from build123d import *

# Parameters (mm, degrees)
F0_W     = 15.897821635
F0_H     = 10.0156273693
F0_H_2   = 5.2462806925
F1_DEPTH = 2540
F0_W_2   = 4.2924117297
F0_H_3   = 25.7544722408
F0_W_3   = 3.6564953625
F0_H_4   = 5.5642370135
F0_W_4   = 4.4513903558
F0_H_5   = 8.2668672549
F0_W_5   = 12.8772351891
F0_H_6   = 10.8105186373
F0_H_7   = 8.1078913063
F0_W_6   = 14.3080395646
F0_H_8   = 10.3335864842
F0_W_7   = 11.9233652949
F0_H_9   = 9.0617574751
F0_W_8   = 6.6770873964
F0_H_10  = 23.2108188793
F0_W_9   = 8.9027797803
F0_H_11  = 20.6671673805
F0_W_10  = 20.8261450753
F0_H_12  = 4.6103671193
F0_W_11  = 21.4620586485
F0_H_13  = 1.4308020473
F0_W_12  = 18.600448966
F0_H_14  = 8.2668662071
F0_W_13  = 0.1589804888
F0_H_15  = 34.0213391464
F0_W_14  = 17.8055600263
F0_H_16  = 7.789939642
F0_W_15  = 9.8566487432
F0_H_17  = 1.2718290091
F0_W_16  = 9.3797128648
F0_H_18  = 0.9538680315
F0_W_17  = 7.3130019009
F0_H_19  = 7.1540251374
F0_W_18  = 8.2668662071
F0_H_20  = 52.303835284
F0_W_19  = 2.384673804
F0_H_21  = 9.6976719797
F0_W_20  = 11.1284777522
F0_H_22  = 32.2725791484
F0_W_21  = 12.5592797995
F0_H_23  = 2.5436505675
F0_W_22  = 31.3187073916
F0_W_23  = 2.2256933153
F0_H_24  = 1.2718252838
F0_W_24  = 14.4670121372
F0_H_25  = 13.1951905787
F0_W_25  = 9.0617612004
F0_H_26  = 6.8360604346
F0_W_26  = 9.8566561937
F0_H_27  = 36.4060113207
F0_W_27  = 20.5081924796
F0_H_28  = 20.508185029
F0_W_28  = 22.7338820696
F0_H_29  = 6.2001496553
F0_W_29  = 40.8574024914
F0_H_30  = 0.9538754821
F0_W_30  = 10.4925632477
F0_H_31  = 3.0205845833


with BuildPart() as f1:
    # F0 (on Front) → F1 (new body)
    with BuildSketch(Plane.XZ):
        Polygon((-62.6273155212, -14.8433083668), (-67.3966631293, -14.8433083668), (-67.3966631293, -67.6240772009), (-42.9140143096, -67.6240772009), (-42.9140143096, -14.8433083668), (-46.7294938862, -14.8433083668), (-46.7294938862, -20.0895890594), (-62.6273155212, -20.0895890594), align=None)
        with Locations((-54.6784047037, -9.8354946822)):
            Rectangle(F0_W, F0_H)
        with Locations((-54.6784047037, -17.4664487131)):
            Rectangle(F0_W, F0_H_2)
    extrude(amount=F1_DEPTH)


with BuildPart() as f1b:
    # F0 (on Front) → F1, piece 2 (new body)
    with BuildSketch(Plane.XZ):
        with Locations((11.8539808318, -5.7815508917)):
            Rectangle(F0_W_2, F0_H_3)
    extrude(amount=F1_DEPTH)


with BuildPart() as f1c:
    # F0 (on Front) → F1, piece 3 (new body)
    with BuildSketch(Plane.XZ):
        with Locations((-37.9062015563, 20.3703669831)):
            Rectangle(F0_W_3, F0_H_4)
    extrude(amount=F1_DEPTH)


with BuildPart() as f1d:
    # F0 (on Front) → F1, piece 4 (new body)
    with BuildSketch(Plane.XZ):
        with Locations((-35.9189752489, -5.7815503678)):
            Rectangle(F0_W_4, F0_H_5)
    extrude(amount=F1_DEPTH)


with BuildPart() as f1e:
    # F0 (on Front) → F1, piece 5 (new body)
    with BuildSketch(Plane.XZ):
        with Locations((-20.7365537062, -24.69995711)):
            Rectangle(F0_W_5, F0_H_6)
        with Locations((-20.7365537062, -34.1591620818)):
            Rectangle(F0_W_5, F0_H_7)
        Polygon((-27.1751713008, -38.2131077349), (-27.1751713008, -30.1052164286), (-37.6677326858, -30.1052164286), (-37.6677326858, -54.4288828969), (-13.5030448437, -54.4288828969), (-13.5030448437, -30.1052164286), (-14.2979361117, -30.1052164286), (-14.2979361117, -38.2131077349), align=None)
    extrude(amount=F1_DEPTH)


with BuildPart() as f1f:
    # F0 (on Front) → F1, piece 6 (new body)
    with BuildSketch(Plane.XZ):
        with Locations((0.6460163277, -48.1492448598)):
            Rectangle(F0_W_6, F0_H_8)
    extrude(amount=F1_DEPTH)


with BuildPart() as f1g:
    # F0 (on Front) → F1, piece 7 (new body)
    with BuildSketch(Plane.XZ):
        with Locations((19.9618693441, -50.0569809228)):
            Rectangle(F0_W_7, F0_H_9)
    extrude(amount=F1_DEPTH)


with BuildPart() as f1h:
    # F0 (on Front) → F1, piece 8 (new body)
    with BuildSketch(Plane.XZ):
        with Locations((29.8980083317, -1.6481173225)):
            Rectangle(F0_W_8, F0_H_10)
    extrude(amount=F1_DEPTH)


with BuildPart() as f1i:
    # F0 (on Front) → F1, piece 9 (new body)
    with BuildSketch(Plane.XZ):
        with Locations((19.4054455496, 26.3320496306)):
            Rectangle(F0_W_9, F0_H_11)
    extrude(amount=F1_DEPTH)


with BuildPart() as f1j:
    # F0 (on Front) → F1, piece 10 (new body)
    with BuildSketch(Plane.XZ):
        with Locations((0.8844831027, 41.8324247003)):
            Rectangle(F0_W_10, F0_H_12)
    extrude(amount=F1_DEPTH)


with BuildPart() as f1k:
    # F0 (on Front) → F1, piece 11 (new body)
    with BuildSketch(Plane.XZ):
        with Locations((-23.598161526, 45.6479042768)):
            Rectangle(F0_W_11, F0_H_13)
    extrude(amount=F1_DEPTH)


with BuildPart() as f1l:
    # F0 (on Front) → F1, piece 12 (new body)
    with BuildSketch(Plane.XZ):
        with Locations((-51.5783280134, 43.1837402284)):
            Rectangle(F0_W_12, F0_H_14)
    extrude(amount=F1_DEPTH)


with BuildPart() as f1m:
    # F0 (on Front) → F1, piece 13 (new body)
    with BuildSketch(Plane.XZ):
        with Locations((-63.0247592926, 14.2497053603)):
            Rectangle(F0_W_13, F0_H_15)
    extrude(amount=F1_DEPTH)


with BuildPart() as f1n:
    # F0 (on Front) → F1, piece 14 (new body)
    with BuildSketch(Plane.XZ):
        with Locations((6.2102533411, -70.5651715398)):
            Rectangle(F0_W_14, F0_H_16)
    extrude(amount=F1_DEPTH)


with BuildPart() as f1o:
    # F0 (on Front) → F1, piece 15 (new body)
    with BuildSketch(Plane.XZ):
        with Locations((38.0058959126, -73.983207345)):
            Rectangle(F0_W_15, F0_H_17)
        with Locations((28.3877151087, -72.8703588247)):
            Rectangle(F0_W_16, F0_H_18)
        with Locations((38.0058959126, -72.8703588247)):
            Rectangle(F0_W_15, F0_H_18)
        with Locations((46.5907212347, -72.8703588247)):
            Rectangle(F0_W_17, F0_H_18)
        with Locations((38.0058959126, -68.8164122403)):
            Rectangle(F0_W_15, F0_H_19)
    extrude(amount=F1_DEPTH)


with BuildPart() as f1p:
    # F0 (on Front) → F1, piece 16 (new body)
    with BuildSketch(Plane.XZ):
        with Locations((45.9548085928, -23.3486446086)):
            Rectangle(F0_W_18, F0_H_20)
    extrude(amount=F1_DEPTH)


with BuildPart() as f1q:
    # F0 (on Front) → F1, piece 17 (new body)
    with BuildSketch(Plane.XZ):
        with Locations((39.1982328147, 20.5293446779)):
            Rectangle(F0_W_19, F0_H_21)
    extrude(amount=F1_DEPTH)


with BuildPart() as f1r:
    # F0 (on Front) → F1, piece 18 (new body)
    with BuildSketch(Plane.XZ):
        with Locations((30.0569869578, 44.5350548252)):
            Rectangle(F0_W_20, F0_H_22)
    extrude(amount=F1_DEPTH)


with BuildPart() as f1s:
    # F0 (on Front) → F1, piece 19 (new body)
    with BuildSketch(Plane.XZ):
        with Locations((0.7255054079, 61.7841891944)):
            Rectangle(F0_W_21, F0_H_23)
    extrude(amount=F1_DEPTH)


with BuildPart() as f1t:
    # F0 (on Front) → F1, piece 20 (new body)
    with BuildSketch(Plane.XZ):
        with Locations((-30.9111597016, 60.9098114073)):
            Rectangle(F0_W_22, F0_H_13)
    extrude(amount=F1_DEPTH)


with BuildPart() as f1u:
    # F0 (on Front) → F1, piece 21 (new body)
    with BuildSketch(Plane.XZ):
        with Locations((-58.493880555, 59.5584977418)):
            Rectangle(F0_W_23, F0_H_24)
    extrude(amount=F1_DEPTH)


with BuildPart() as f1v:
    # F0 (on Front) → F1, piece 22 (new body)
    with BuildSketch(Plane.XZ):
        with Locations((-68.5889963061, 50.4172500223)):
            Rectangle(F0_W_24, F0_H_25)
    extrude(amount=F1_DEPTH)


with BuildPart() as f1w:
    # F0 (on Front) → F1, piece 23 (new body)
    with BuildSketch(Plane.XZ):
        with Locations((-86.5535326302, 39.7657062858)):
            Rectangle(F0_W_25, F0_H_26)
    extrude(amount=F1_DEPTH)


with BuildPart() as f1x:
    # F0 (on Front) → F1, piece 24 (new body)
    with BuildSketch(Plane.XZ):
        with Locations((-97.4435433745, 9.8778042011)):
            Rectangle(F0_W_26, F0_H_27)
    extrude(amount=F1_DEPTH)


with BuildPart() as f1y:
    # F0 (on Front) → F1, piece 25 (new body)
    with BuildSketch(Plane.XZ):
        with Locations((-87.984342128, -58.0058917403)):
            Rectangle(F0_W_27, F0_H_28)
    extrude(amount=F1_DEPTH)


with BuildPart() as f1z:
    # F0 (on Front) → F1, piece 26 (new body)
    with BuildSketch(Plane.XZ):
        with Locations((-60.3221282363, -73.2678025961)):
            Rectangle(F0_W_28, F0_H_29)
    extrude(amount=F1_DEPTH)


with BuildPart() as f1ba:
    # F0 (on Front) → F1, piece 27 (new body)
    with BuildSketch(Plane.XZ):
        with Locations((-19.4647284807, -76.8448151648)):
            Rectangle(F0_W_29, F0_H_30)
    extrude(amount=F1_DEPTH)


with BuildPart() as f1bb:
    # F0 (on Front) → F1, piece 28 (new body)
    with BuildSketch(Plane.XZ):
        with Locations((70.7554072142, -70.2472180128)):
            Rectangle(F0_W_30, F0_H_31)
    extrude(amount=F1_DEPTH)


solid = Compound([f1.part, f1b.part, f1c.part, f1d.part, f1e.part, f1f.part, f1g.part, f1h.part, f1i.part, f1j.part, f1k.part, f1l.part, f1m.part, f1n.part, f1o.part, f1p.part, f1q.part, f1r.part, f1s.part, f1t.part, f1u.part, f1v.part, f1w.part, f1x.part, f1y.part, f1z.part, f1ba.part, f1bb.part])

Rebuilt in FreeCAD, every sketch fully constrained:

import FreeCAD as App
import Part
import Sketcher

doc = App.newDocument("Part")
params = doc.addObject("Spreadsheet::Sheet", "Params")
for row, (alias, value) in enumerate([
    ("pad1_length", "100 in"),
    ("pad2_length", "100 in"),
    ("pad3_length", "100 in"),
    ("pad4_length", "100 in"),
    ("pad5_length", "100 in"),
    ("pad6_length", "100 in"),
    ("pad7_length", "100 in"),
    ("pad8_length", "100 in"),
    ("pad9_length", "100 in"),
    ("pad10_length", "100 in"),
    ("pad11_length", "100 in"),
    ("pad12_length", "100 in"),
    ("pad13_length", "100 in"),
    ("pad14_length", "100 in"),
    ("pad15_length", "100 in"),
    ("pad16_length", "100 in"),
    ("pad17_length", "100 in"),
    ("pad18_length", "100 in"),
    ("pad19_length", "100 in"),
    ("pad20_length", "100 in"),
    ("pad21_length", "100 in"),
    ("pad22_length", "100 in"),
    ("pad23_length", "100 in"),
    ("pad24_length", "100 in"),
    ("pad25_length", "100 in"),
    ("pad26_length", "100 in"),
    ("pad27_length", "100 in"),
    ("pad28_length", "100 in"),
], start=1):
    params.set(f"A{row}", alias)
    params.set(f"B{row}", "=" + value)
    params.setAlias(f"B{row}", alias)

body = doc.addObject("PartDesign::Body", "Body")

# Sketch on XZ plane
sketch1 = body.newObject("Sketcher::SketchObject", "Sketch")
sketch1.AttachmentSupport = (doc.getObject("XZ_Plane"), [""])
sketch1.MapMode = "FlatFace"
sketch1.addGeometry([
    Part.LineSegment(App.Vector(-62.6, -14.8, 0), App.Vector(-67.4, -14.8, 0)),  # 0
    Part.LineSegment(App.Vector(-67.4, -14.8, 0), App.Vector(-67.4, -67.6, 0)),  # 1
    Part.LineSegment(App.Vector(-67.4, -67.6, 0), App.Vector(-42.9, -67.6, 0)),  # 2
    Part.LineSegment(App.Vector(-42.9, -67.6, 0), App.Vector(-42.9, -14.8, 0)),  # 3
    Part.LineSegment(App.Vector(-42.9, -14.8, 0), App.Vector(-46.7, -14.8, 0)),  # 4
    Part.LineSegment(App.Vector(-46.7, -14.8, 0), App.Vector(-46.7, -4.8, 0)),  # 5
    Part.LineSegment(App.Vector(-46.7, -4.8, 0), App.Vector(-62.6, -4.8, 0)),  # 6
    Part.LineSegment(App.Vector(-62.6, -4.8, 0), App.Vector(-62.6, -14.8, 0)),  # 7
], False)
sketch1.addConstraint([
    Sketcher.Constraint("Coincident", 0, 2, 1, 1),
    Sketcher.Constraint("Coincident", 1, 2, 2, 1),
    Sketcher.Constraint("Coincident", 2, 2, 3, 1),
    Sketcher.Constraint("Coincident", 3, 2, 4, 1),
    Sketcher.Constraint("Coincident", 4, 2, 5, 1),
    Sketcher.Constraint("Coincident", 5, 2, 6, 1),
    Sketcher.Constraint("Coincident", 6, 2, 7, 1),
    Sketcher.Constraint("Coincident", 7, 2, 0, 1),
    Sketcher.Constraint("Horizontal", 0),
    Sketcher.Constraint("Vertical", 1),
    Sketcher.Constraint("Horizontal", 2),
    Sketcher.Constraint("Vertical", 3),
    Sketcher.Constraint("Horizontal", 4),
    Sketcher.Constraint("Vertical", 5),
    Sketcher.Constraint("Horizontal", 6),
    Sketcher.Constraint("Vertical", 7),
    Sketcher.Constraint("Horizontal", 0, 2, 3, 2),
    Sketcher.Constraint("DistanceX", 2, 1, 2, 2, 24.482649),
    Sketcher.Constraint("DistanceX", 4, 2, 4, 1, 3.81548),
    Sketcher.Constraint("DistanceX", 6, 2, 6, 1, 15.897822),
    Sketcher.Constraint("DistanceY", 1, 2, 1, 1, 52.780769),
    Sketcher.Constraint("DistanceY", 5, 1, 5, 2, 10.015627),
    Sketcher.Constraint("DistanceY", 0, 2, -1, 1, 14.843308),
    Sketcher.Constraint("DistanceX", 0, 2, -1, 1, 67.396663),
])
pad1 = body.newObject("PartDesign::Pad", "Pad")
pad1.Profile = sketch1
pad1.setExpression("Length", "Params.pad1_length")
body2 = doc.addObject("PartDesign::Body", "Body001")

# Sketch on XZ plane
sketch2 = body2.newObject("Sketcher::SketchObject", "Sketch001")
sketch2.AttachmentSupport = (doc.getObject("XZ_Plane001"), [""])
sketch2.MapMode = "FlatFace"
sketch2.addGeometry([
    Part.LineSegment(App.Vector(9.7, 7.1, 0), App.Vector(9.7, -18.7, 0)),
    Part.LineSegment(App.Vector(9.7, -18.7, 0), App.Vector(14, -18.7, 0)),
    Part.LineSegment(App.Vector(14, -18.7, 0), App.Vector(14, 7.1, 0)),
    Part.LineSegment(App.Vector(14, 7.1, 0), App.Vector(9.7, 7.1, 0)),
], False)
sketch2.addConstraint([
    Sketcher.Constraint("Coincident", 0, 2, 1, 1),
    Sketcher.Constraint("Coincident", 1, 2, 2, 1),
    Sketcher.Constraint("Coincident", 2, 2, 3, 1),
    Sketcher.Constraint("Coincident", 3, 2, 0, 1),
    Sketcher.Constraint("Vertical", 0),
    Sketcher.Constraint("Horizontal", 1),
    Sketcher.Constraint("Vertical", 2),
    Sketcher.Constraint("Horizontal", 3),
    Sketcher.Constraint("DistanceX", 1, 1, 1, 2, 4.292412),
    Sketcher.Constraint("DistanceY", 0, 2, 0, 1, 25.754472),
    Sketcher.Constraint("DistanceX", -1, 1, 0, 2, 9.707775),
    Sketcher.Constraint("DistanceY", 0, 2, -1, 1, 18.658787),
])
pad2 = body2.newObject("PartDesign::Pad", "Pad001")
pad2.Profile = sketch2
pad2.setExpression("Length", "Params.pad2_length")
body3 = doc.addObject("PartDesign::Body", "Body002")

# Sketch on XZ plane
sketch3 = body3.newObject("Sketcher::SketchObject", "Sketch002")
sketch3.AttachmentSupport = (doc.getObject("XZ_Plane002"), [""])
sketch3.MapMode = "FlatFace"
sketch3.addGeometry([
    Part.LineSegment(App.Vector(-39.7, 23.2, 0), App.Vector(-39.7, 17.6, 0)),
    Part.LineSegment(App.Vector(-39.7, 17.6, 0), App.Vector(-36.1, 17.6, 0)),
    Part.LineSegment(App.Vector(-36.1, 17.6, 0), App.Vector(-36.1, 23.2, 0)),
    Part.LineSegment(App.Vector(-36.1, 23.2, 0), App.Vector(-39.7, 23.2, 0)),
], False)
sketch3.addConstraint([
    Sketcher.Constraint("Coincident", 0, 2, 1, 1),
    Sketcher.Constraint("Coincident", 1, 2, 2, 1),
    Sketcher.Constraint("Coincident", 2, 2, 3, 1),
    Sketcher.Constraint("Coincident", 3, 2, 0, 1),
    Sketcher.Constraint("Vertical", 0),
    Sketcher.Constraint("Horizontal", 1),
    Sketcher.Constraint("Vertical", 2),
    Sketcher.Constraint("Horizontal", 3),
    Sketcher.Constraint("DistanceX", 1, 1, 1, 2, 3.656495),
    Sketcher.Constraint("DistanceY", 0, 2, 0, 1, 5.564237),
    Sketcher.Constraint("DistanceX", 0, 2, -1, 1, 39.734449),
    Sketcher.Constraint("DistanceY", -1, 1, 0, 2, 17.588248),
])
pad3 = body3.newObject("PartDesign::Pad", "Pad002")
pad3.Profile = sketch3
pad3.setExpression("Length", "Params.pad3_length")
body4 = doc.addObject("PartDesign::Body", "Body003")

# Sketch on XZ plane
sketch4 = body4.newObject("Sketcher::SketchObject", "Sketch003")
sketch4.AttachmentSupport = (doc.getObject("XZ_Plane003"), [""])
sketch4.MapMode = "FlatFace"
sketch4.addGeometry([
    Part.LineSegment(App.Vector(-38.1, -1.6, 0), App.Vector(-38.1, -9.9, 0)),
    Part.LineSegment(App.Vector(-38.1, -9.9, 0), App.Vector(-33.7, -9.9, 0)),
    Part.LineSegment(App.Vector(-33.7, -9.9, 0), App.Vector(-33.7, -1.6, 0)),
    Part.LineSegment(App.Vector(-33.7, -1.6, 0), App.Vector(-38.1, -1.6, 0)),
], False)
sketch4.addConstraint([
    Sketcher.Constraint("Coincident", 0, 2, 1, 1),
    Sketcher.Constraint("Coincident", 1, 2, 2, 1),
    Sketcher.Constraint("Coincident", 2, 2, 3, 1),
    Sketcher.Constraint("Coincident", 3, 2, 0, 1),
    Sketcher.Constraint("Vertical", 0),
    Sketcher.Constraint("Horizontal", 1),
    Sketcher.Constraint("Vertical", 2),
    Sketcher.Constraint("Horizontal", 3),
    Sketcher.Constraint("DistanceX", 1, 1, 1, 2, 4.45139),
    Sketcher.Constraint("DistanceY", 0, 2, 0, 1, 8.266867),
    Sketcher.Constraint("DistanceX", 0, 2, -1, 1, 38.14467),
    Sketcher.Constraint("DistanceY", 0, 2, -1, 1, 9.914984),
])
pad4 = body4.newObject("PartDesign::Pad", "Pad003")
pad4.Profile = sketch4
pad4.setExpression("Length", "Params.pad4_length")
body5 = doc.addObject("PartDesign::Body", "Body004")

# Sketch on XZ plane
sketch5 = body5.newObject("Sketcher::SketchObject", "Sketch004")
sketch5.AttachmentSupport = (doc.getObject("XZ_Plane004"), [""])
sketch5.MapMode = "FlatFace"
sketch5.addGeometry([
    Part.LineSegment(App.Vector(-27.2, -19.3, 0), App.Vector(-27.2, -30.1, 0)),  # 0
    Part.LineSegment(App.Vector(-27.2, -30.1, 0), App.Vector(-37.7, -30.1, 0)),  # 1
    Part.LineSegment(App.Vector(-37.7, -30.1, 0), App.Vector(-37.7, -54.4, 0)),  # 2
    Part.LineSegment(App.Vector(-37.7, -54.4, 0), App.Vector(-13.5, -54.4, 0)),  # 3
    Part.LineSegment(App.Vector(-13.5, -54.4, 0), App.Vector(-13.5, -30.1, 0)),  # 4
    Part.LineSegment(App.Vector(-13.5, -30.1, 0), App.Vector(-14.3, -30.1, 0)),  # 5
    Part.LineSegment(App.Vector(-14.3, -30.1, 0), App.Vector(-14.3, -19.3, 0)),  # 6
    Part.LineSegment(App.Vector(-14.3, -19.3, 0), App.Vector(-27.2, -19.3, 0)),  # 7
], False)
sketch5.addConstraint([
    Sketcher.Constraint("Coincident", 0, 2, 1, 1),
    Sketcher.Constraint("Coincident", 1, 2, 2, 1),
    Sketcher.Constraint("Coincident", 2, 2, 3, 1),
    Sketcher.Constraint("Coincident", 3, 2, 4, 1),
    Sketcher.Constraint("Coincident", 4, 2, 5, 1),
    Sketcher.Constraint("Coincident", 5, 2, 6, 1),
    Sketcher.Constraint("Coincident", 6, 2, 7, 1),
    Sketcher.Constraint("Coincident", 7, 2, 0, 1),
    Sketcher.Constraint("Vertical", 0),
    Sketcher.Constraint("Horizontal", 1),
    Sketcher.Constraint("Vertical", 2),
    Sketcher.Constraint("Horizontal", 3),
    Sketcher.Constraint("Vertical", 4),
    Sketcher.Constraint("Horizontal", 5),
    Sketcher.Constraint("Vertical", 6),
    Sketcher.Constraint("Horizontal", 7),
    Sketcher.Constraint("Horizontal", 1, 2, 4, 2),
    Sketcher.Constraint("DistanceX", 1, 2, 1, 1, 10.492561),
    Sketcher.Constraint("DistanceX", 5, 2, 5, 1, 0.794891),
    Sketcher.Constraint("DistanceY", 0, 2, 0, 1, 10.810519),
    Sketcher.Constraint("DistanceX", 3, 1, 3, 2, 24.164688),
    Sketcher.Constraint("DistanceY", 2, 2, 2, 1, 24.323666),
    Sketcher.Constraint("DistanceX", 0, 2, -1, 1, 27.175171),
    Sketcher.Constraint("DistanceY", 0, 2, -1, 1, 30.105216),
])
pad5 = body5.newObject("PartDesign::Pad", "Pad004")
pad5.Profile = sketch5
pad5.setExpression("Length", "Params.pad5_length")
body6 = doc.addObject("PartDesign::Body", "Body005")

# Sketch on XZ plane
sketch6 = body6.newObject("Sketcher::SketchObject", "Sketch005")
sketch6.AttachmentSupport = (doc.getObject("XZ_Plane005"), [""])
sketch6.MapMode = "FlatFace"
sketch6.addGeometry([
    Part.LineSegment(App.Vector(-7, -43, 0), App.Vector(-7, -53, 0)),
    Part.LineSegment(App.Vector(-7, -53, 0), App.Vector(8, -53, 0)),
    Part.LineSegment(App.Vector(8, -53, 0), App.Vector(8, -43, 0)),
    Part.LineSegment(App.Vector(8, -43, 0), App.Vector(-7, -43, 0)),
], False)
sketch6.addConstraint([
    Sketcher.Constraint("Coincident", 0, 2, 1, 1),
    Sketcher.Constraint("Coincident", 1, 2, 2, 1),
    Sketcher.Constraint("Coincident", 2, 2, 3, 1),
    Sketcher.Constraint("Coincident", 3, 2, 0, 1),
    Sketcher.Constraint("Vertical", 0),
    Sketcher.Constraint("Horizontal", 1),
    Sketcher.Constraint("Vertical", 2),
    Sketcher.Constraint("Horizontal", 3),
    Sketcher.Constraint("DistanceX", 1, 1, 1, 2, 14.30804),
    Sketcher.Constraint("DistanceY", 0, 2, 0, 1, 10.333586),
    Sketcher.Constraint("DistanceY", 0, 2, -1, 1, 53.316038),
    Sketcher.Constraint("DistanceX", 0, 2, -1, 1, 6.508003),
])
pad6 = body6.newObject("PartDesign::Pad", "Pad005")
pad6.Profile = sketch6
pad6.setExpression("Length", "Params.pad6_length")
body7 = doc.addObject("PartDesign::Body", "Body006")

# Sketch on XZ plane
sketch7 = body7.newObject("Sketcher::SketchObject", "Sketch006")
sketch7.AttachmentSupport = (doc.getObject("XZ_Plane006"), [""])
sketch7.MapMode = "FlatFace"
sketch7.addGeometry([
    Part.LineSegment(App.Vector(14, -46, 0), App.Vector(14, -55, 0)),
    Part.LineSegment(App.Vector(14, -55, 0), App.Vector(26, -55, 0)),
    Part.LineSegment(App.Vector(26, -55, 0), App.Vector(26, -46, 0)),
    Part.LineSegment(App.Vector(26, -46, 0), App.Vector(14, -46, 0)),
], False)
sketch7.addConstraint([
    Sketcher.Constraint("Coincident", 0, 2, 1, 1),
    Sketcher.Constraint("Coincident", 1, 2, 2, 1),
    Sketcher.Constraint("Coincident", 2, 2, 3, 1),
    Sketcher.Constraint("Coincident", 3, 2, 0, 1),
    Sketcher.Constraint("Vertical", 0),
    Sketcher.Constraint("Horizontal", 1),
    Sketcher.Constraint("Vertical", 2),
    Sketcher.Constraint("Horizontal", 3),
    Sketcher.Constraint("DistanceX", 1, 1, 1, 2, 11.923365),
    Sketcher.Constraint("DistanceY", 0, 2, 0, 1, 9.061757),
    Sketcher.Constraint("DistanceY", 0, 2, -1, 1, 54.58786),
    Sketcher.Constraint("DistanceX", -1, 1, 1, 2, 25.923552),
])
pad7 = body7.newObject("PartDesign::Pad", "Pad006")
pad7.Profile = sketch7
pad7.setExpression("Length", "Params.pad7_length")
body8 = doc.addObject("PartDesign::Body", "Body007")

# Sketch on XZ plane
sketch8 = body8.newObject("Sketcher::SketchObject", "Sketch007")
sketch8.AttachmentSupport = (doc.getObject("XZ_Plane007"), [""])
sketch8.MapMode = "FlatFace"
sketch8.addGeometry([
    Part.LineSegment(App.Vector(27, 10, 0), App.Vector(27, -13, 0)),
    Part.LineSegment(App.Vector(27, -13, 0), App.Vector(33, -13, 0)),
    Part.LineSegment(App.Vector(33, -13, 0), App.Vector(33, 10, 0)),
    Part.LineSegment(App.Vector(33, 10, 0), App.Vector(27, 10, 0)),
], False)
sketch8.addConstraint([
    Sketcher.Constraint("Coincident", 0, 2, 1, 1),
    Sketcher.Constraint("Coincident", 1, 2, 2, 1),
    Sketcher.Constraint("Coincident", 2, 2, 3, 1),
    Sketcher.Constraint("Coincident", 3, 2, 0, 1),
    Sketcher.Constraint("Vertical", 0),
    Sketcher.Constraint("Horizontal", 1),
    Sketcher.Constraint("Vertical", 2),
    Sketcher.Constraint("Horizontal", 3),
    Sketcher.Constraint("DistanceY", 0, 2, 0, 1, 23.210819),
    Sketcher.Constraint("DistanceX", 1, 1, 1, 2, 6.677087),
    Sketcher.Constraint("DistanceX", -1, 1, 0, 2, 26.559465),
    Sketcher.Constraint("DistanceY", 0, 2, -1, 1, 13.253527),
])
pad8 = body8.newObject("PartDesign::Pad", "Pad007")
pad8.Profile = sketch8
pad8.setExpression("Length", "Params.pad8_length")
body9 = doc.addObject("PartDesign::Body", "Body008")

# Sketch on XZ plane
sketch9 = body9.newObject("Sketcher::SketchObject", "Sketch008")
sketch9.AttachmentSupport = (doc.getObject("XZ_Plane008"), [""])
sketch9.MapMode = "FlatFace"
sketch9.addGeometry([
    Part.LineSegment(App.Vector(15, 37, 0), App.Vector(15, 16, 0)),
    Part.LineSegment(App.Vector(15, 16, 0), App.Vector(24, 16, 0)),
    Part.LineSegment(App.Vector(24, 16, 0), App.Vector(24, 37, 0)),
    Part.LineSegment(App.Vector(24, 37, 0), App.Vector(15, 37, 0)),
], False)
sketch9.addConstraint([
    Sketcher.Constraint("Coincident", 0, 2, 1, 1),
    Sketcher.Constraint("Coincident", 1, 2, 2, 1),
    Sketcher.Constraint("Coincident", 2, 2, 3, 1),
    Sketcher.Constraint("Coincident", 3, 2, 0, 1),
    Sketcher.Constraint("Vertical", 0),
    Sketcher.Constraint("Horizontal", 1),
    Sketcher.Constraint("Vertical", 2),
    Sketcher.Constraint("Horizontal", 3),
    Sketcher.Constraint("DistanceX", 1, 1, 1, 2, 8.90278),
    Sketcher.Constraint("DistanceY", 0, 2, 0, 1, 20.667167),
    Sketcher.Constraint("DistanceX", -1, 1, 0, 2, 14.954056),
    Sketcher.Constraint("DistanceY", -1, 1, 0, 2, 15.998466),
])
pad9 = body9.newObject("PartDesign::Pad", "Pad008")
pad9.Profile = sketch9
pad9.setExpression("Length", "Params.pad9_length")
body10 = doc.addObject("PartDesign::Body", "Body009")

# Sketch on XZ plane
sketch10 = body10.newObject("Sketcher::SketchObject", "Sketch009")
sketch10.AttachmentSupport = (doc.getObject("XZ_Plane009"), [""])
sketch10.MapMode = "FlatFace"
sketch10.addGeometry([
    Part.LineSegment(App.Vector(-9.5, 44.1, 0), App.Vector(-9.5, 39.5, 0)),
    Part.LineSegment(App.Vector(-9.5, 39.5, 0), App.Vector(11.3, 39.5, 0)),
    Part.LineSegment(App.Vector(11.3, 39.5, 0), App.Vector(11.3, 44.1, 0)),
    Part.LineSegment(App.Vector(11.3, 44.1, 0), App.Vector(-9.5, 44.1, 0)),
], False)
sketch10.addConstraint([
    Sketcher.Constraint("Coincident", 0, 2, 1, 1),
    Sketcher.Constraint("Coincident", 1, 2, 2, 1),
    Sketcher.Constraint("Coincident", 2, 2, 3, 1),
    Sketcher.Constraint("Coincident", 3, 2, 0, 1),
    Sketcher.Constraint("Vertical", 0),
    Sketcher.Constraint("Horizontal", 1),
    Sketcher.Constraint("Vertical", 2),
    Sketcher.Constraint("Horizontal", 3),
    Sketcher.Constraint("DistanceX", 1, 1, 1, 2, 20.826145),
    Sketcher.Constraint("DistanceY", 0, 2, 0, 1, 4.610367),
    Sketcher.Constraint("DistanceX", 0, 2, -1, 1, 9.528589),
    Sketcher.Constraint("DistanceY", -1, 1, 0, 2, 39.527241),
])
pad10 = body10.newObject("PartDesign::Pad", "Pad009")
pad10.Profile = sketch10
pad10.setExpression("Length", "Params.pad10_length")
body11 = doc.addObject("PartDesign::Body", "Body010")

# Sketch on XZ plane
sketch11 = body11.newObject("Sketcher::SketchObject", "Sketch010")
sketch11.AttachmentSupport = (doc.getObject("XZ_Plane010"), [""])
sketch11.MapMode = "FlatFace"
sketch11.addGeometry([
    Part.LineSegment(App.Vector(-34.3, 46.4, 0), App.Vector(-34.3, 44.9, 0)),
    Part.LineSegment(App.Vector(-34.3, 44.9, 0), App.Vector(-12.9, 44.9, 0)),
    Part.LineSegment(App.Vector(-12.9, 44.9, 0), App.Vector(-12.9, 46.4, 0)),
    Part.LineSegment(App.Vector(-12.9, 46.4, 0), App.Vector(-34.3, 46.4, 0)),
], False)
sketch11.addConstraint([
    Sketcher.Constraint("Coincident", 0, 2, 1, 1),
    Sketcher.Constraint("Coincident", 1, 2, 2, 1),
    Sketcher.Constraint("Coincident", 2, 2, 3, 1),
    Sketcher.Constraint("Coincident", 3, 2, 0, 1),
    Sketcher.Constraint("Vertical", 0),
    Sketcher.Constraint("Horizontal", 1),
    Sketcher.Constraint("Vertical", 2),
    Sketcher.Constraint("Horizontal", 3),
    Sketcher.Constraint("DistanceX", 1, 1, 1, 2, 21.462059),
    Sketcher.Constraint("DistanceY", 0, 2, 0, 1, 1.430802),
    Sketcher.Constraint("DistanceX", 0, 2, -1, 1, 34.329191),
    Sketcher.Constraint("DistanceY", -1, 1, 0, 2, 44.932503),
])
pad11 = body11.newObject("PartDesign::Pad", "Pad010")
pad11.Profile = sketch11
pad11.setExpression("Length", "Params.pad11_length")
body12 = doc.addObject("PartDesign::Body", "Body011")

# Sketch on XZ plane
sketch12 = body12.newObject("Sketcher::SketchObject", "Sketch011")
sketch12.AttachmentSupport = (doc.getObject("XZ_Plane011"), [""])
sketch12.MapMode = "FlatFace"
sketch12.addGeometry([
    Part.LineSegment(App.Vector(-61, 47, 0), App.Vector(-61, 39, 0)),
    Part.LineSegment(App.Vector(-61, 39, 0), App.Vector(-42, 39, 0)),
    Part.LineSegment(App.Vector(-42, 39, 0), App.Vector(-42, 47, 0)),
    Part.LineSegment(App.Vector(-42, 47, 0), App.Vector(-61, 47, 0)),
], False)
sketch12.addConstraint([
    Sketcher.Constraint("Coincident", 0, 2, 1, 1),
    Sketcher.Constraint("Coincident", 1, 2, 2, 1),
    Sketcher.Constraint("Coincident", 2, 2, 3, 1),
    Sketcher.Constraint("Coincident", 3, 2, 0, 1),
    Sketcher.Constraint("Vertical", 0),
    Sketcher.Constraint("Horizontal", 1),
    Sketcher.Constraint("Vertical", 2),
    Sketcher.Constraint("Horizontal", 3),
    Sketcher.Constraint("DistanceX", 1, 1, 1, 2, 18.600449),
    Sketcher.Constraint("DistanceY", 0, 2, 0, 1, 8.266866),
    Sketcher.Constraint("DistanceX", 0, 2, -1, 1, 60.878552),
    Sketcher.Constraint("DistanceY", -1, 1, 0, 2, 39.050307),
])
pad12 = body12.newObject("PartDesign::Pad", "Pad011")
pad12.Profile = sketch12
pad12.setExpression("Length", "Params.pad12_length")
body13 = doc.addObject("PartDesign::Body", "Body012")

# Sketch on XZ plane
sketch13 = body13.newObject("Sketcher::SketchObject", "Sketch012")
sketch13.AttachmentSupport = (doc.getObject("XZ_Plane012"), [""])
sketch13.MapMode = "FlatFace"
sketch13.addGeometry([
    Part.LineSegment(App.Vector(-63.1, 31.26, 0), App.Vector(-63.1, -2.76, 0)),
    Part.LineSegment(App.Vector(-63.1, -2.76, 0), App.Vector(-62.95, -2.76, 0)),
    Part.LineSegment(App.Vector(-62.95, -2.76, 0), App.Vector(-62.95, 31.26, 0)),
    Part.LineSegment(App.Vector(-62.95, 31.26, 0), App.Vector(-63.1, 31.26, 0)),
], False)
sketch13.addConstraint([
    Sketcher.Constraint("Coincident", 0, 2, 1, 1),
    Sketcher.Constraint("Coincident", 1, 2, 2, 1),
    Sketcher.Constraint("Coincident", 2, 2, 3, 1),
    Sketcher.Constraint("Coincident", 3, 2, 0, 1),
    Sketcher.Constraint("Vertical", 0),
    Sketcher.Constraint("Horizontal", 1),
    Sketcher.Constraint("Vertical", 2),
    Sketcher.Constraint("Horizontal", 3),
    Sketcher.Constraint("DistanceX", 1, 1, 1, 2, 0.15898),
    Sketcher.Constraint("DistanceY", 0, 2, 0, 1, 34.021339),
    Sketcher.Constraint("DistanceX", 0, 2, -1, 1, 63.10425),
    Sketcher.Constraint("DistanceY", 0, 2, -1, 1, 2.760964),
])
pad13 = body13.newObject("PartDesign::Pad", "Pad012")
pad13.Profile = sketch13
pad13.setExpression("Length", "Params.pad13_length")
body14 = doc.addObject("PartDesign::Body", "Body013")

# Sketch on XZ plane
sketch14 = body14.newObject("Sketcher::SketchObject", "Sketch013")
sketch14.AttachmentSupport = (doc.getObject("XZ_Plane013"), [""])
sketch14.MapMode = "FlatFace"
sketch14.addGeometry([
    Part.LineSegment(App.Vector(-3, -67, 0), App.Vector(-3, -74, 0)),
    Part.LineSegment(App.Vector(-3, -74, 0), App.Vector(15, -74, 0)),
    Part.LineSegment(App.Vector(15, -74, 0), App.Vector(15, -67, 0)),
    Part.LineSegment(App.Vector(15, -67, 0), App.Vector(-3, -67, 0)),
], False)
sketch14.addConstraint([
    Sketcher.Constraint("Coincident", 0, 2, 1, 1),
    Sketcher.Constraint("Coincident", 1, 2, 2, 1),
    Sketcher.Constraint("Coincident", 2, 2, 3, 1),
    Sketcher.Constraint("Coincident", 3, 2, 0, 1),
    Sketcher.Constraint("Vertical", 0),
    Sketcher.Constraint("Horizontal", 1),
    Sketcher.Constraint("Vertical", 2),
    Sketcher.Constraint("Horizontal", 3),
    Sketcher.Constraint("DistanceX", 1, 1, 1, 2, 17.80556),
    Sketcher.Constraint("DistanceY", 0, 2, 0, 1, 7.78994),
    Sketcher.Constraint("DistanceY", 2, 2, -1, 1, 66.670202),
    Sketcher.Constraint("DistanceX", 0, 2, -1, 1, 2.692527),
])
pad14 = body14.newObject("PartDesign::Pad", "Pad013")
pad14.Profile = sketch14
pad14.setExpression("Length", "Params.pad14_length")
body15 = doc.addObject("PartDesign::Body", "Body014")

# Sketch on XZ plane
sketch15 = body15.newObject("Sketcher::SketchObject", "Sketch014")
sketch15.AttachmentSupport = (doc.getObject("XZ_Plane014"), [""])
sketch15.MapMode = "FlatFace"
sketch15.addGeometry([
    Part.LineSegment(App.Vector(33.1, -73.3, 0), App.Vector(33.1, -74.6, 0)),  # 0
    Part.LineSegment(App.Vector(33.1, -74.6, 0), App.Vector(42.9, -74.6, 0)),  # 1
    Part.LineSegment(App.Vector(42.9, -74.6, 0), App.Vector(42.9, -73.3, 0)),  # 2
    Part.LineSegment(App.Vector(42.9, -73.3, 0), App.Vector(50.2, -73.3, 0)),  # 3
    Part.LineSegment(App.Vector(50.2, -73.3, 0), App.Vector(50.2, -72.4, 0)),  # 4
    Part.LineSegment(App.Vector(50.2, -72.4, 0), App.Vector(42.9, -72.4, 0)),  # 5
    Part.LineSegment(App.Vector(42.9, -72.4, 0), App.Vector(42.9, -65.2, 0)),  # 6
    Part.LineSegment(App.Vector(42.9, -65.2, 0), App.Vector(33.1, -65.2, 0)),  # 7
    Part.LineSegment(App.Vector(33.1, -65.2, 0), App.Vector(33.1, -72.4, 0)),  # 8
    Part.LineSegment(App.Vector(33.1, -72.4, 0), App.Vector(23.7, -72.4, 0)),  # 9
    Part.LineSegment(App.Vector(23.7, -72.4, 0), App.Vector(23.7, -73.3, 0)),  # 10
    Part.LineSegment(App.Vector(23.7, -73.3, 0), App.Vector(33.1, -73.3, 0)),  # 11
], False)
sketch15.addConstraint([
    Sketcher.Constraint("Coincident", 0, 2, 1, 1),
    Sketcher.Constraint("Coincident", 1, 2, 2, 1),
    Sketcher.Constraint("Coincident", 2, 2, 3, 1),
    Sketcher.Constraint("Coincident", 3, 2, 4, 1),
    Sketcher.Constraint("Coincident", 4, 2, 5, 1),
    Sketcher.Constraint("Coincident", 5, 2, 6, 1),
    Sketcher.Constraint("Coincident", 6, 2, 7, 1),
    Sketcher.Constraint("Coincident", 7, 2, 8, 1),
    Sketcher.Constraint("Coincident", 8, 2, 9, 1),
    Sketcher.Constraint("Coincident", 9, 2, 10, 1),
    Sketcher.Constraint("Coincident", 10, 2, 11, 1),
    Sketcher.Constraint("Coincident", 11, 2, 0, 1),
    Sketcher.Constraint("Vertical", 0),
    Sketcher.Constraint("Horizontal", 1),
    Sketcher.Constraint("Vertical", 2),
    Sketcher.Constraint("Horizontal", 3),
    Sketcher.Constraint("Vertical", 4),
    Sketcher.Constraint("Horizontal", 5),
    Sketcher.Constraint("Vertical", 6),
    Sketcher.Constraint("Horizontal", 7),
    Sketcher.Constraint("Vertical", 8),
    Sketcher.Constraint("Horizontal", 9),
    Sketcher.Constraint("Vertical", 10),
    Sketcher.Constraint("Horizontal", 11),
    Sketcher.Constraint("Horizontal", 5, 2, 8, 2),
    Sketcher.Constraint("Horizontal", 3, 2, 10, 2),
    Sketcher.Constraint("Vertical", 2, 2, 5, 2),
    Sketcher.Constraint("Vertical", 0, 2, 7, 2),
    Sketcher.Constraint("DistanceX", 3, 1, 3, 2, 7.313002),
    Sketcher.Constraint("DistanceX", 1, 1, 1, 2, 9.856649),
    Sketcher.Constraint("DistanceY", 0, 2, 0, 1, 1.271829),
    Sketcher.Constraint("DistanceY", 4, 1, 4, 2, 0.953868),
    Sketcher.Constraint("DistanceY", 6, 2, -1, 1, 65.2394),
    Sketcher.Constraint("DistanceX", 9, 2, 9, 1, 9.379713),
    Sketcher.Constraint("DistanceY", 6, 1, 6, 2, 7.154025),
    Sketcher.Constraint("DistanceX", -1, 1, 0, 2, 33.077572),
])
pad15 = body15.newObject("PartDesign::Pad", "Pad014")
pad15.Profile = sketch15
pad15.setExpression("Length", "Params.pad15_length")
body16 = doc.addObject("PartDesign::Body", "Body015")

# Sketch on XZ plane
sketch16 = body16.newObject("Sketcher::SketchObject", "Sketch015")
sketch16.AttachmentSupport = (doc.getObject("XZ_Plane015"), [""])
sketch16.MapMode = "FlatFace"
sketch16.addGeometry([
    Part.LineSegment(App.Vector(42, 3, 0), App.Vector(42, -50, 0)),
    Part.LineSegment(App.Vector(42, -50, 0), App.Vector(50, -50, 0)),
    Part.LineSegment(App.Vector(50, -50, 0), App.Vector(50, 3, 0)),
    Part.LineSegment(App.Vector(50, 3, 0), App.Vector(42, 3, 0)),
], False)
sketch16.addConstraint([
    Sketcher.Constraint("Coincident", 0, 2, 1, 1),
    Sketcher.Constraint("Coincident", 1, 2, 2, 1),
    Sketcher.Constraint("Coincident", 2, 2, 3, 1),
    Sketcher.Constraint("Coincident", 3, 2, 0, 1),
    Sketcher.Constraint("Vertical", 0),
    Sketcher.Constraint("Horizontal", 1),
    Sketcher.Constraint("Vertical", 2),
    Sketcher.Constraint("Horizontal", 3),
    Sketcher.Constraint("DistanceX", 1, 1, 1, 2, 8.266866),
    Sketcher.Constraint("DistanceY", 0, 2, 0, 1, 52.303835),
    Sketcher.Constraint("DistanceX", -1, 1, 1, 2, 50.088242),
    Sketcher.Constraint("DistanceY", 0, 2, -1, 1, 49.500562),
])
pad16 = body16.newObject("PartDesign::Pad", "Pad015")
pad16.Profile = sketch16
pad16.setExpression("Length", "Params.pad16_length")
body17 = doc.addObject("PartDesign::Body", "Body016")

# Sketch on XZ plane
sketch17 = body17.newObject("Sketcher::SketchObject", "Sketch016")
sketch17.AttachmentSupport = (doc.getObject("XZ_Plane016"), [""])
sketch17.MapMode = "FlatFace"
sketch17.addGeometry([
    Part.LineSegment(App.Vector(38, 25.4, 0), App.Vector(38, 15.7, 0)),
    Part.LineSegment(App.Vector(38, 15.7, 0), App.Vector(40.4, 15.7, 0)),
    Part.LineSegment(App.Vector(40.4, 15.7, 0), App.Vector(40.4, 25.4, 0)),
    Part.LineSegment(App.Vector(40.4, 25.4, 0), App.Vector(38, 25.4, 0)),
], False)
sketch17.addConstraint([
    Sketcher.Constraint("Coincident", 0, 2, 1, 1),
    Sketcher.Constraint("Coincident", 1, 2, 2, 1),
    Sketcher.Constraint("Coincident", 2, 2, 3, 1),
    Sketcher.Constraint("Coincident", 3, 2, 0, 1),
    Sketcher.Constraint("Vertical", 0),
    Sketcher.Constraint("Horizontal", 1),
    Sketcher.Constraint("Vertical", 2),
    Sketcher.Constraint("Horizontal", 3),
    Sketcher.Constraint("DistanceY", 0, 2, 0, 1, 9.697672),
    Sketcher.Constraint("DistanceX", 1, 1, 1, 2, 2.384674),
    Sketcher.Constraint("DistanceY", -1, 1, 0, 2, 15.680509),
    Sketcher.Constraint("DistanceX", -1, 1, 1, 2, 40.39057),
])
pad17 = body17.newObject("PartDesign::Pad", "Pad016")
pad17.Profile = sketch17
pad17.setExpression("Length", "Params.pad17_length")
body18 = doc.addObject("PartDesign::Body", "Body017")

# Sketch on XZ plane
sketch18 = body18.newObject("Sketcher::SketchObject", "Sketch017")
sketch18.AttachmentSupport = (doc.getObject("XZ_Plane017"), [""])
sketch18.MapMode = "FlatFace"
sketch18.addGeometry([
    Part.LineSegment(App.Vector(24, 61, 0), App.Vector(24, 28, 0)),
    Part.LineSegment(App.Vector(24, 28, 0), App.Vector(36, 28, 0)),
    Part.LineSegment(App.Vector(36, 28, 0), App.Vector(36, 61, 0)),
    Part.LineSegment(App.Vector(36, 61, 0), App.Vector(24, 61, 0)),
], False)
sketch18.addConstraint([
    Sketcher.Constraint("Coincident", 0, 2, 1, 1),
    Sketcher.Constraint("Coincident", 1, 2, 2, 1),
    Sketcher.Constraint("Coincident", 2, 2, 3, 1),
    Sketcher.Constraint("Coincident", 3, 2, 0, 1),
    Sketcher.Constraint("Vertical", 0),
    Sketcher.Constraint("Horizontal", 1),
    Sketcher.Constraint("Vertical", 2),
    Sketcher.Constraint("Horizontal", 3),
    Sketcher.Constraint("DistanceY", 0, 2, 0, 1, 32.272579),
    Sketcher.Constraint("DistanceX", 1, 1, 1, 2, 11.128478),
    Sketcher.Constraint("DistanceX", -1, 1, 0, 2, 24.492748),
    Sketcher.Constraint("DistanceY", -1, 1, 0, 2, 28.398765),
])
pad18 = body18.newObject("PartDesign::Pad", "Pad017")
pad18.Profile = sketch18
pad18.setExpression("Length", "Params.pad18_length")
body19 = doc.addObject("PartDesign::Body", "Body018")

# Sketch on XZ plane
sketch19 = body19.newObject("Sketcher::SketchObject", "Sketch018")
sketch19.AttachmentSupport = (doc.getObject("XZ_Plane018"), [""])
sketch19.MapMode = "FlatFace"
sketch19.addGeometry([
    Part.LineSegment(App.Vector(-5.6, 63.1, 0), App.Vector(-5.6, 60.5, 0)),
    Part.LineSegment(App.Vector(-5.6, 60.5, 0), App.Vector(7, 60.5, 0)),
    Part.LineSegment(App.Vector(7, 60.5, 0), App.Vector(7, 63.1, 0)),
    Part.LineSegment(App.Vector(7, 63.1, 0), App.Vector(-5.6, 63.1, 0)),
], False)
sketch19.addConstraint([
    Sketcher.Constraint("Coincident", 0, 2, 1, 1),
    Sketcher.Constraint("Coincident", 1, 2, 2, 1),
    Sketcher.Constraint("Coincident", 2, 2, 3, 1),
    Sketcher.Constraint("Coincident", 3, 2, 0, 1),
    Sketcher.Constraint("Vertical", 0),
    Sketcher.Constraint("Horizontal", 1),
    Sketcher.Constraint("Vertical", 2),
    Sketcher.Constraint("Horizontal", 3),
    Sketcher.Constraint("DistanceX", 1, 1, 1, 2, 12.55928),
    Sketcher.Constraint("DistanceY", 0, 2, 0, 1, 2.543651),
    Sketcher.Constraint("DistanceX", 0, 2, -1, 1, 5.554134),
    Sketcher.Constraint("DistanceY", -1, 1, 0, 2, 60.512364),
])
pad19 = body19.newObject("PartDesign::Pad", "Pad018")
pad19.Profile = sketch19
pad19.setExpression("Length", "Params.pad19_length")
body20 = doc.addObject("PartDesign::Body", "Body019")

# Sketch on XZ plane
sketch20 = body20.newObject("Sketcher::SketchObject", "Sketch019")
sketch20.AttachmentSupport = (doc.getObject("XZ_Plane019"), [""])
sketch20.MapMode = "FlatFace"
sketch20.addGeometry([
    Part.LineSegment(App.Vector(-46.6, 61.6, 0), App.Vector(-46.6, 60.2, 0)),
    Part.LineSegment(App.Vector(-46.6, 60.2, 0), App.Vector(-15.3, 60.2, 0)),
    Part.LineSegment(App.Vector(-15.3, 60.2, 0), App.Vector(-15.3, 61.6, 0)),
    Part.LineSegment(App.Vector(-15.3, 61.6, 0), App.Vector(-46.6, 61.6, 0)),
], False)
sketch20.addConstraint([
    Sketcher.Constraint("Coincident", 0, 2, 1, 1),
    Sketcher.Constraint("Coincident", 1, 2, 2, 1),
    Sketcher.Constraint("Coincident", 2, 2, 3, 1),
    Sketcher.Constraint("Coincident", 3, 2, 0, 1),
    Sketcher.Constraint("Vertical", 0),
    Sketcher.Constraint("Horizontal", 1),
    Sketcher.Constraint("Vertical", 2),
    Sketcher.Constraint("Horizontal", 3),
    Sketcher.Constraint("DistanceX", 1, 1, 1, 2, 31.318707),
    Sketcher.Constraint("DistanceY", 0, 2, 0, 1, 1.430802),
    Sketcher.Constraint("DistanceY", -1, 1, 0, 2, 60.19441),
    Sketcher.Constraint("DistanceX", 0, 2, -1, 1, 46.570513),
])
pad20 = body20.newObject("PartDesign::Pad", "Pad019")
pad20.Profile = sketch20
pad20.setExpression("Length", "Params.pad20_length")
body21 = doc.addObject("PartDesign::Body", "Body020")

# Sketch on XZ plane
sketch21 = body21.newObject("Sketcher::SketchObject", "Sketch020")
sketch21.AttachmentSupport = (doc.getObject("XZ_Plane020"), [""])
sketch21.MapMode = "FlatFace"
sketch21.addGeometry([
    Part.LineSegment(App.Vector(-59.6, 60.2, 0), App.Vector(-59.6, 58.9, 0)),
    Part.LineSegment(App.Vector(-59.6, 58.9, 0), App.Vector(-57.4, 58.9, 0)),
    Part.LineSegment(App.Vector(-57.4, 58.9, 0), App.Vector(-57.4, 60.2, 0)),
    Part.LineSegment(App.Vector(-57.4, 60.2, 0), App.Vector(-59.6, 60.2, 0)),
], False)
sketch21.addConstraint([
    Sketcher.Constraint("Coincident", 0, 2, 1, 1),
    Sketcher.Constraint("Coincident", 1, 2, 2, 1),
    Sketcher.Constraint("Coincident", 2, 2, 3, 1),
    Sketcher.Constraint("Coincident", 3, 2, 0, 1),
    Sketcher.Constraint("Vertical", 0),
    Sketcher.Constraint("Horizontal", 1),
    Sketcher.Constraint("Vertical", 2),
    Sketcher.Constraint("Horizontal", 3),
    Sketcher.Constraint("DistanceX", 1, 1, 1, 2, 2.225693),
    Sketcher.Constraint("DistanceY", 0, 2, 0, 1, 1.271825),
    Sketcher.Constraint("DistanceY", -1, 1, 2, 2, 60.19441),
    Sketcher.Constraint("DistanceX", 0, 2, -1, 1, 59.606727),
])
pad21 = body21.newObject("PartDesign::Pad", "Pad020")
pad21.Profile = sketch21
pad21.setExpression("Length", "Params.pad21_length")
body22 = doc.addObject("PartDesign::Body", "Body021")

# Sketch on XZ plane
sketch22 = body22.newObject("Sketcher::SketchObject", "Sketch021")
sketch22.AttachmentSupport = (doc.getObject("XZ_Plane021"), [""])
sketch22.MapMode = "FlatFace"
sketch22.addGeometry([
    Part.LineSegment(App.Vector(-76, 57, 0), App.Vector(-76, 44, 0)),
    Part.LineSegment(App.Vector(-76, 44, 0), App.Vector(-61, 44, 0)),
    Part.LineSegment(App.Vector(-61, 44, 0), App.Vector(-61, 57, 0)),
    Part.LineSegment(App.Vector(-61, 57, 0), App.Vector(-76, 57, 0)),
], False)
sketch22.addConstraint([
    Sketcher.Constraint("Coincident", 0, 2, 1, 1),
    Sketcher.Constraint("Coincident", 1, 2, 2, 1),
    Sketcher.Constraint("Coincident", 2, 2, 3, 1),
    Sketcher.Constraint("Coincident", 3, 2, 0, 1),
    Sketcher.Constraint("Vertical", 0),
    Sketcher.Constraint("Horizontal", 1),
    Sketcher.Constraint("Vertical", 2),
    Sketcher.Constraint("Horizontal", 3),
    Sketcher.Constraint("DistanceY", 0, 2, 0, 1, 13.195191),
    Sketcher.Constraint("DistanceX", 1, 1, 1, 2, 14.467012),
    Sketcher.Constraint("DistanceX", 1, 2, -1, 1, 61.35549),
    Sketcher.Constraint("DistanceY", -1, 1, 0, 2, 43.819655),
])
pad22 = body22.newObject("PartDesign::Pad", "Pad021")
pad22.Profile = sketch22
pad22.setExpression("Length", "Params.pad22_length")
body23 = doc.addObject("PartDesign::Body", "Body022")

# Sketch on XZ plane
sketch23 = body23.newObject("Sketcher::SketchObject", "Sketch022")
sketch23.AttachmentSupport = (doc.getObject("XZ_Plane022"), [""])
sketch23.MapMode = "FlatFace"
sketch23.addGeometry([
    Part.LineSegment(App.Vector(-91, 43, 0), App.Vector(-91, 36, 0)),
    Part.LineSegment(App.Vector(-91, 36, 0), App.Vector(-82, 36, 0)),
    Part.LineSegment(App.Vector(-82, 36, 0), App.Vector(-82, 43, 0)),
    Part.LineSegment(App.Vector(-82, 43, 0), App.Vector(-91, 43, 0)),
], False)
sketch23.addConstraint([
    Sketcher.Constraint("Coincident", 0, 2, 1, 1),
    Sketcher.Constraint("Coincident", 1, 2, 2, 1),
    Sketcher.Constraint("Coincident", 2, 2, 3, 1),
    Sketcher.Constraint("Coincident", 3, 2, 0, 1),
    Sketcher.Constraint("Vertical", 0),
    Sketcher.Constraint("Horizontal", 1),
    Sketcher.Constraint("Vertical", 2),
    Sketcher.Constraint("Horizontal", 3),
    Sketcher.Constraint("DistanceX", 1, 1, 1, 2, 9.061761),
    Sketcher.Constraint("DistanceY", 0, 2, 0, 1, 6.83606),
    Sketcher.Constraint("DistanceX", 0, 2, -1, 1, 91.084413),
    Sketcher.Constraint("DistanceY", -1, 1, 0, 2, 36.347676),
])
pad23 = body23.newObject("PartDesign::Pad", "Pad022")
pad23.Profile = sketch23
pad23.setExpression("Length", "Params.pad23_length")
body24 = doc.addObject("PartDesign::Body", "Body023")

# Sketch on XZ plane
sketch24 = body24.newObject("Sketcher::SketchObject", "Sketch023")
sketch24.AttachmentSupport = (doc.getObject("XZ_Plane023"), [""])
sketch24.MapMode = "FlatFace"
sketch24.addGeometry([
    Part.LineSegment(App.Vector(-102, 28, 0), App.Vector(-102, -8, 0)),
    Part.LineSegment(App.Vector(-102, -8, 0), App.Vector(-93, -8, 0)),
    Part.LineSegment(App.Vector(-93, -8, 0), App.Vector(-93, 28, 0)),
    Part.LineSegment(App.Vector(-93, 28, 0), App.Vector(-102, 28, 0)),
], False)
sketch24.addConstraint([
    Sketcher.Constraint("Coincident", 0, 2, 1, 1),
    Sketcher.Constraint("Coincident", 1, 2, 2, 1),
    Sketcher.Constraint("Coincident", 2, 2, 3, 1),
    Sketcher.Constraint("Coincident", 3, 2, 0, 1),
    Sketcher.Constraint("Vertical", 0),
    Sketcher.Constraint("Horizontal", 1),
    Sketcher.Constraint("Vertical", 2),
    Sketcher.Constraint("Horizontal", 3),
    Sketcher.Constraint("DistanceY", 0, 2, 0, 1, 36.406011),
    Sketcher.Constraint("DistanceY", 0, 2, -1, 1, 8.325201),
    Sketcher.Constraint("DistanceX", 1, 1, 1, 2, 9.856656),
    Sketcher.Constraint("DistanceX", 0, 2, -1, 1, 102.371871),
])
pad24 = body24.newObject("PartDesign::Pad", "Pad023")
pad24.Profile = sketch24
pad24.setExpression("Length", "Params.pad24_length")
body25 = doc.addObject("PartDesign::Body", "Body024")

# Sketch on XZ plane
sketch25 = body25.newObject("Sketcher::SketchObject", "Sketch024")
sketch25.AttachmentSupport = (doc.getObject("XZ_Plane024"), [""])
sketch25.MapMode = "FlatFace"
sketch25.addGeometry([
    Part.LineSegment(App.Vector(-98, -48, 0), App.Vector(-98, -68, 0)),
    Part.LineSegment(App.Vector(-98, -68, 0), App.Vector(-78, -68, 0)),
    Part.LineSegment(App.Vector(-78, -68, 0), App.Vector(-78, -48, 0)),
    Part.LineSegment(App.Vector(-78, -48, 0), App.Vector(-98, -48, 0)),
], False)
sketch25.addConstraint([
    Sketcher.Constraint("Coincident", 0, 2, 1, 1),
    Sketcher.Constraint("Coincident", 1, 2, 2, 1),
    Sketcher.Constraint("Coincident", 2, 2, 3, 1),
    Sketcher.Constraint("Coincident", 3, 2, 0, 1),
    Sketcher.Constraint("Vertical", 0),
    Sketcher.Constraint("Horizontal", 1),
    Sketcher.Constraint("Vertical", 2),
    Sketcher.Constraint("Horizontal", 3),
    Sketcher.Constraint("DistanceY", 2, 2, -1, 1, 47.751799),
    Sketcher.Constraint("DistanceX", 1, 1, 1, 2, 20.508192),
    Sketcher.Constraint("DistanceY", 0, 2, 0, 1, 20.508185),
    Sketcher.Constraint("DistanceX", 0, 2, -1, 1, 98.238438),
])
pad25 = body25.newObject("PartDesign::Pad", "Pad024")
pad25.Profile = sketch25
pad25.setExpression("Length", "Params.pad25_length")
body26 = doc.addObject("PartDesign::Body", "Body025")

# Sketch on XZ plane
sketch26 = body26.newObject("Sketcher::SketchObject", "Sketch025")
sketch26.AttachmentSupport = (doc.getObject("XZ_Plane025"), [""])
sketch26.MapMode = "FlatFace"
sketch26.addGeometry([
    Part.LineSegment(App.Vector(-72, -70, 0), App.Vector(-72, -76, 0)),
    Part.LineSegment(App.Vector(-72, -76, 0), App.Vector(-49, -76, 0)),
    Part.LineSegment(App.Vector(-49, -76, 0), App.Vector(-49, -70, 0)),
    Part.LineSegment(App.Vector(-49, -70, 0), App.Vector(-72, -70, 0)),
], False)
sketch26.addConstraint([
    Sketcher.Constraint("Coincident", 0, 2, 1, 1),
    Sketcher.Constraint("Coincident", 1, 2, 2, 1),
    Sketcher.Constraint("Coincident", 2, 2, 3, 1),
    Sketcher.Constraint("Coincident", 3, 2, 0, 1),
    Sketcher.Constraint("Vertical", 0),
    Sketcher.Constraint("Horizontal", 1),
    Sketcher.Constraint("Vertical", 2),
    Sketcher.Constraint("Horizontal", 3),
    Sketcher.Constraint("DistanceY", 0, 2, 0, 1, 6.20015),
    Sketcher.Constraint("DistanceX", 1, 1, 1, 2, 22.733882),
    Sketcher.Constraint("DistanceX", 0, 2, -1, 1, 71.689069),
    Sketcher.Constraint("DistanceY", 0, 2, -1, 1, 76.367877),
])
pad26 = body26.newObject("PartDesign::Pad", "Pad025")
pad26.Profile = sketch26
pad26.setExpression("Length", "Params.pad26_length")
body27 = doc.addObject("PartDesign::Body", "Body026")

# Sketch on XZ plane
sketch27 = body27.newObject("Sketcher::SketchObject", "Sketch026")
sketch27.AttachmentSupport = (doc.getObject("XZ_Plane026"), [""])
sketch27.MapMode = "FlatFace"
sketch27.addGeometry([
    Part.LineSegment(App.Vector(-39.9, -76.4, 0), App.Vector(-39.9, -77.3, 0)),
    Part.LineSegment(App.Vector(-39.9, -77.3, 0), App.Vector(1, -77.3, 0)),
    Part.LineSegment(App.Vector(1, -77.3, 0), App.Vector(1, -76.4, 0)),
    Part.LineSegment(App.Vector(1, -76.4, 0), App.Vector(-39.9, -76.4, 0)),
], False)
sketch27.addConstraint([
    Sketcher.Constraint("Coincident", 0, 2, 1, 1),
    Sketcher.Constraint("Coincident", 1, 2, 2, 1),
    Sketcher.Constraint("Coincident", 2, 2, 3, 1),
    Sketcher.Constraint("Coincident", 3, 2, 0, 1),
    Sketcher.Constraint("Vertical", 0),
    Sketcher.Constraint("Horizontal", 1),
    Sketcher.Constraint("Vertical", 2),
    Sketcher.Constraint("Horizontal", 3),
    Sketcher.Constraint("DistanceX", 1, 1, 1, 2, 40.857402),
    Sketcher.Constraint("DistanceY", 0, 2, 0, 1, 0.953875),
    Sketcher.Constraint("DistanceX", 0, 2, -1, 1, 39.89343),
    Sketcher.Constraint("DistanceY", 0, 2, -1, 1, 77.321753),
])
pad27 = body27.newObject("PartDesign::Pad", "Pad026")
pad27.Profile = sketch27
pad27.setExpression("Length", "Params.pad27_length")
body28 = doc.addObject("PartDesign::Body", "Body027")

# Sketch on XZ plane
sketch28 = body28.newObject("Sketcher::SketchObject", "Sketch027")
sketch28.AttachmentSupport = (doc.getObject("XZ_Plane027"), [""])
sketch28.MapMode = "FlatFace"
sketch28.addGeometry([
    Part.LineSegment(App.Vector(65.5, -68.7, 0), App.Vector(65.5, -71.8, 0)),
    Part.LineSegment(App.Vector(65.5, -71.8, 0), App.Vector(76, -71.8, 0)),
    Part.LineSegment(App.Vector(76, -71.8, 0), App.Vector(76, -68.7, 0)),
    Part.LineSegment(App.Vector(76, -68.7, 0), App.Vector(65.5, -68.7, 0)),
], False)
sketch28.addConstraint([
    Sketcher.Constraint("Coincident", 0, 2, 1, 1),
    Sketcher.Constraint("Coincident", 1, 2, 2, 1),
    Sketcher.Constraint("Coincident", 2, 2, 3, 1),
    Sketcher.Constraint("Coincident", 3, 2, 0, 1),
    Sketcher.Constraint("Vertical", 0),
    Sketcher.Constraint("Horizontal", 1),
    Sketcher.Constraint("Vertical", 2),
    Sketcher.Constraint("Horizontal", 3),
    Sketcher.Constraint("DistanceX", 1, 1, 1, 2, 10.492563),
    Sketcher.Constraint("DistanceY", 0, 2, 0, 1, 3.020585),
    Sketcher.Constraint("DistanceY", 0, 2, -1, 1, 71.75751),
    Sketcher.Constraint("DistanceX", -1, 1, 1, 2, 76.001689),
])
pad28 = body28.newObject("PartDesign::Pad", "Pad027")
pad28.Profile = sketch28
pad28.setExpression("Length", "Params.pad28_length")

doc.recompute()
